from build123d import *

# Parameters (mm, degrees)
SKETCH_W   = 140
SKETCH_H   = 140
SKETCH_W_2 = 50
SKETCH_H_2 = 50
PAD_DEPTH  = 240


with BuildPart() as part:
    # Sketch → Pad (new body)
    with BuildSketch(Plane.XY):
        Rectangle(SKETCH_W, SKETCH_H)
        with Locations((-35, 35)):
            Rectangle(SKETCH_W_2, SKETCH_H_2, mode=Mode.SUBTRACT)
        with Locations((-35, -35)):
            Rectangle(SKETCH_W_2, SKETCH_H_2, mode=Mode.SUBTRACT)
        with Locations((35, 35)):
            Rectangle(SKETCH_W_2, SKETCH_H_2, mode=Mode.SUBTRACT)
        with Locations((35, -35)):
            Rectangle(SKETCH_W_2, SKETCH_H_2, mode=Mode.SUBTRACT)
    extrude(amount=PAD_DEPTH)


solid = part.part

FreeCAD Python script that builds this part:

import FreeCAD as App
import Part
import Sketcher
from FreeCAD import Vector
Q = App.Units.Quantity


def add_polygon(sketch, points):
    """Adds a closed chain of lines whose ends are joined by coincident constraints."""
    first, n = sketch.GeometryCount, len(points)
    for a, b in zip(points, points[1:] + points[:1]):
        sketch.addGeometry(Part.LineSegment(App.Vector(*a, 0), App.Vector(*b, 0)), False)
    for i in range(n):
        sketch.addConstraint(Sketcher.Constraint("Coincident", first + i, 2, first + (i + 1) % n, 1))

doc = App.newDocument("Part")
body = doc.addObject("PartDesign::Body", "Body")

# Sketch on XY plane
sketch1 = body.newObject("Sketcher::SketchObject", "Sketch")
sketch1.AttachmentSupport = (doc.getObject("XY_Plane"), [""])
sketch1.MapMode = "FlatFace"
add_polygon(sketch1, [(-70, 70), (-70, -70), (70, -70), (70, 70)])  # lines 0-3
add_polygon(sketch1, [(-10, -60), (-60, -60), (-60, -10), (-10, -10)])  # lines 4-7
add_polygon(sketch1, [(60, -60), (10, -60), (10, -10), (60, -10)])  # lines 8-11
add_polygon(sketch1, [(-10, 10), (-60, 10), (-60, 60), (-10, 60)])  # lines 12-15
add_polygon(sketch1, [(60, 10), (10, 10), (10, 60), (60, 60)])  # lines 16-19
sketch1.addConstraint([
    Sketcher.Constraint("Vertical", 0),
    Sketcher.Constraint("Horizontal", 1),
    Sketcher.Constraint("Vertical", 2),
    Sketcher.Constraint("Horizontal", 3),
    Sketcher.Constraint("Horizontal", 4),
    Sketcher.Constraint("Vertical", 5),
    Sketcher.Constraint("Horizontal", 6),
    Sketcher.Constraint("Vertical", 7),
    Sketcher.Constraint("Horizontal", 8),
    Sketcher.Constraint("Vertical", 9),
    Sketcher.Constraint("Horizontal", 10),
    Sketcher.Constraint("Vertical", 11),
    Sketcher.Constraint("Horizontal", 12),
    Sketcher.Constraint("Vertical", 13),
    Sketcher.Constraint("Horizontal", 14),
    Sketcher.Constraint("Vertical", 15),
    Sketcher.Constraint("Horizontal", 16),
    Sketcher.Constraint("Vertical", 17),
    Sketcher.Constraint("Horizontal", 18),
    Sketcher.Constraint("Vertical", 19),
    Sketcher.Constraint("Symmetric", 0, 2, 2, 2, -1, 1),
    Sketcher.Constraint("Symmetric", 10, 2, 12, 2, -1, 1),
    Sketcher.Constraint("Symmetric", 8, 2, 14, 2, -1, 1),
    Sketcher.Constraint("Symmetric", 6, 2, 16, 2, -1, 1),
    Sketcher.Constraint("Symmetric", 4, 2, 18, 2, -1, 1),
    Sketcher.Constraint("Symmetric", 7, 2, 8, 2, -2),
    Sketcher.Constraint("Symmetric", 5, 2, 10, 2, -2),
    Sketcher.Constraint("Equal", 3, 0),
    Sketcher.Constraint("Equal", 18, 5),
    Sketcher.Constraint("DistanceX", 1, 1, 1, 2, Q("140 mm")),
    Sketcher.Constraint("DistanceX", 4, 2, 4, 1, Q("50 mm")),
    Sketcher.Constraint("DistanceX", 4, 2, -1, 1, Q("60 mm")),
    Sketcher.Constraint("DistanceY", 4, 2, -1, 1, Q("60 mm")),
])
pad1 = body.newObject("PartDesign::Pad", "Pad")
pad1.Profile = sketch1
pad1.Length = 240

doc.recompute()
